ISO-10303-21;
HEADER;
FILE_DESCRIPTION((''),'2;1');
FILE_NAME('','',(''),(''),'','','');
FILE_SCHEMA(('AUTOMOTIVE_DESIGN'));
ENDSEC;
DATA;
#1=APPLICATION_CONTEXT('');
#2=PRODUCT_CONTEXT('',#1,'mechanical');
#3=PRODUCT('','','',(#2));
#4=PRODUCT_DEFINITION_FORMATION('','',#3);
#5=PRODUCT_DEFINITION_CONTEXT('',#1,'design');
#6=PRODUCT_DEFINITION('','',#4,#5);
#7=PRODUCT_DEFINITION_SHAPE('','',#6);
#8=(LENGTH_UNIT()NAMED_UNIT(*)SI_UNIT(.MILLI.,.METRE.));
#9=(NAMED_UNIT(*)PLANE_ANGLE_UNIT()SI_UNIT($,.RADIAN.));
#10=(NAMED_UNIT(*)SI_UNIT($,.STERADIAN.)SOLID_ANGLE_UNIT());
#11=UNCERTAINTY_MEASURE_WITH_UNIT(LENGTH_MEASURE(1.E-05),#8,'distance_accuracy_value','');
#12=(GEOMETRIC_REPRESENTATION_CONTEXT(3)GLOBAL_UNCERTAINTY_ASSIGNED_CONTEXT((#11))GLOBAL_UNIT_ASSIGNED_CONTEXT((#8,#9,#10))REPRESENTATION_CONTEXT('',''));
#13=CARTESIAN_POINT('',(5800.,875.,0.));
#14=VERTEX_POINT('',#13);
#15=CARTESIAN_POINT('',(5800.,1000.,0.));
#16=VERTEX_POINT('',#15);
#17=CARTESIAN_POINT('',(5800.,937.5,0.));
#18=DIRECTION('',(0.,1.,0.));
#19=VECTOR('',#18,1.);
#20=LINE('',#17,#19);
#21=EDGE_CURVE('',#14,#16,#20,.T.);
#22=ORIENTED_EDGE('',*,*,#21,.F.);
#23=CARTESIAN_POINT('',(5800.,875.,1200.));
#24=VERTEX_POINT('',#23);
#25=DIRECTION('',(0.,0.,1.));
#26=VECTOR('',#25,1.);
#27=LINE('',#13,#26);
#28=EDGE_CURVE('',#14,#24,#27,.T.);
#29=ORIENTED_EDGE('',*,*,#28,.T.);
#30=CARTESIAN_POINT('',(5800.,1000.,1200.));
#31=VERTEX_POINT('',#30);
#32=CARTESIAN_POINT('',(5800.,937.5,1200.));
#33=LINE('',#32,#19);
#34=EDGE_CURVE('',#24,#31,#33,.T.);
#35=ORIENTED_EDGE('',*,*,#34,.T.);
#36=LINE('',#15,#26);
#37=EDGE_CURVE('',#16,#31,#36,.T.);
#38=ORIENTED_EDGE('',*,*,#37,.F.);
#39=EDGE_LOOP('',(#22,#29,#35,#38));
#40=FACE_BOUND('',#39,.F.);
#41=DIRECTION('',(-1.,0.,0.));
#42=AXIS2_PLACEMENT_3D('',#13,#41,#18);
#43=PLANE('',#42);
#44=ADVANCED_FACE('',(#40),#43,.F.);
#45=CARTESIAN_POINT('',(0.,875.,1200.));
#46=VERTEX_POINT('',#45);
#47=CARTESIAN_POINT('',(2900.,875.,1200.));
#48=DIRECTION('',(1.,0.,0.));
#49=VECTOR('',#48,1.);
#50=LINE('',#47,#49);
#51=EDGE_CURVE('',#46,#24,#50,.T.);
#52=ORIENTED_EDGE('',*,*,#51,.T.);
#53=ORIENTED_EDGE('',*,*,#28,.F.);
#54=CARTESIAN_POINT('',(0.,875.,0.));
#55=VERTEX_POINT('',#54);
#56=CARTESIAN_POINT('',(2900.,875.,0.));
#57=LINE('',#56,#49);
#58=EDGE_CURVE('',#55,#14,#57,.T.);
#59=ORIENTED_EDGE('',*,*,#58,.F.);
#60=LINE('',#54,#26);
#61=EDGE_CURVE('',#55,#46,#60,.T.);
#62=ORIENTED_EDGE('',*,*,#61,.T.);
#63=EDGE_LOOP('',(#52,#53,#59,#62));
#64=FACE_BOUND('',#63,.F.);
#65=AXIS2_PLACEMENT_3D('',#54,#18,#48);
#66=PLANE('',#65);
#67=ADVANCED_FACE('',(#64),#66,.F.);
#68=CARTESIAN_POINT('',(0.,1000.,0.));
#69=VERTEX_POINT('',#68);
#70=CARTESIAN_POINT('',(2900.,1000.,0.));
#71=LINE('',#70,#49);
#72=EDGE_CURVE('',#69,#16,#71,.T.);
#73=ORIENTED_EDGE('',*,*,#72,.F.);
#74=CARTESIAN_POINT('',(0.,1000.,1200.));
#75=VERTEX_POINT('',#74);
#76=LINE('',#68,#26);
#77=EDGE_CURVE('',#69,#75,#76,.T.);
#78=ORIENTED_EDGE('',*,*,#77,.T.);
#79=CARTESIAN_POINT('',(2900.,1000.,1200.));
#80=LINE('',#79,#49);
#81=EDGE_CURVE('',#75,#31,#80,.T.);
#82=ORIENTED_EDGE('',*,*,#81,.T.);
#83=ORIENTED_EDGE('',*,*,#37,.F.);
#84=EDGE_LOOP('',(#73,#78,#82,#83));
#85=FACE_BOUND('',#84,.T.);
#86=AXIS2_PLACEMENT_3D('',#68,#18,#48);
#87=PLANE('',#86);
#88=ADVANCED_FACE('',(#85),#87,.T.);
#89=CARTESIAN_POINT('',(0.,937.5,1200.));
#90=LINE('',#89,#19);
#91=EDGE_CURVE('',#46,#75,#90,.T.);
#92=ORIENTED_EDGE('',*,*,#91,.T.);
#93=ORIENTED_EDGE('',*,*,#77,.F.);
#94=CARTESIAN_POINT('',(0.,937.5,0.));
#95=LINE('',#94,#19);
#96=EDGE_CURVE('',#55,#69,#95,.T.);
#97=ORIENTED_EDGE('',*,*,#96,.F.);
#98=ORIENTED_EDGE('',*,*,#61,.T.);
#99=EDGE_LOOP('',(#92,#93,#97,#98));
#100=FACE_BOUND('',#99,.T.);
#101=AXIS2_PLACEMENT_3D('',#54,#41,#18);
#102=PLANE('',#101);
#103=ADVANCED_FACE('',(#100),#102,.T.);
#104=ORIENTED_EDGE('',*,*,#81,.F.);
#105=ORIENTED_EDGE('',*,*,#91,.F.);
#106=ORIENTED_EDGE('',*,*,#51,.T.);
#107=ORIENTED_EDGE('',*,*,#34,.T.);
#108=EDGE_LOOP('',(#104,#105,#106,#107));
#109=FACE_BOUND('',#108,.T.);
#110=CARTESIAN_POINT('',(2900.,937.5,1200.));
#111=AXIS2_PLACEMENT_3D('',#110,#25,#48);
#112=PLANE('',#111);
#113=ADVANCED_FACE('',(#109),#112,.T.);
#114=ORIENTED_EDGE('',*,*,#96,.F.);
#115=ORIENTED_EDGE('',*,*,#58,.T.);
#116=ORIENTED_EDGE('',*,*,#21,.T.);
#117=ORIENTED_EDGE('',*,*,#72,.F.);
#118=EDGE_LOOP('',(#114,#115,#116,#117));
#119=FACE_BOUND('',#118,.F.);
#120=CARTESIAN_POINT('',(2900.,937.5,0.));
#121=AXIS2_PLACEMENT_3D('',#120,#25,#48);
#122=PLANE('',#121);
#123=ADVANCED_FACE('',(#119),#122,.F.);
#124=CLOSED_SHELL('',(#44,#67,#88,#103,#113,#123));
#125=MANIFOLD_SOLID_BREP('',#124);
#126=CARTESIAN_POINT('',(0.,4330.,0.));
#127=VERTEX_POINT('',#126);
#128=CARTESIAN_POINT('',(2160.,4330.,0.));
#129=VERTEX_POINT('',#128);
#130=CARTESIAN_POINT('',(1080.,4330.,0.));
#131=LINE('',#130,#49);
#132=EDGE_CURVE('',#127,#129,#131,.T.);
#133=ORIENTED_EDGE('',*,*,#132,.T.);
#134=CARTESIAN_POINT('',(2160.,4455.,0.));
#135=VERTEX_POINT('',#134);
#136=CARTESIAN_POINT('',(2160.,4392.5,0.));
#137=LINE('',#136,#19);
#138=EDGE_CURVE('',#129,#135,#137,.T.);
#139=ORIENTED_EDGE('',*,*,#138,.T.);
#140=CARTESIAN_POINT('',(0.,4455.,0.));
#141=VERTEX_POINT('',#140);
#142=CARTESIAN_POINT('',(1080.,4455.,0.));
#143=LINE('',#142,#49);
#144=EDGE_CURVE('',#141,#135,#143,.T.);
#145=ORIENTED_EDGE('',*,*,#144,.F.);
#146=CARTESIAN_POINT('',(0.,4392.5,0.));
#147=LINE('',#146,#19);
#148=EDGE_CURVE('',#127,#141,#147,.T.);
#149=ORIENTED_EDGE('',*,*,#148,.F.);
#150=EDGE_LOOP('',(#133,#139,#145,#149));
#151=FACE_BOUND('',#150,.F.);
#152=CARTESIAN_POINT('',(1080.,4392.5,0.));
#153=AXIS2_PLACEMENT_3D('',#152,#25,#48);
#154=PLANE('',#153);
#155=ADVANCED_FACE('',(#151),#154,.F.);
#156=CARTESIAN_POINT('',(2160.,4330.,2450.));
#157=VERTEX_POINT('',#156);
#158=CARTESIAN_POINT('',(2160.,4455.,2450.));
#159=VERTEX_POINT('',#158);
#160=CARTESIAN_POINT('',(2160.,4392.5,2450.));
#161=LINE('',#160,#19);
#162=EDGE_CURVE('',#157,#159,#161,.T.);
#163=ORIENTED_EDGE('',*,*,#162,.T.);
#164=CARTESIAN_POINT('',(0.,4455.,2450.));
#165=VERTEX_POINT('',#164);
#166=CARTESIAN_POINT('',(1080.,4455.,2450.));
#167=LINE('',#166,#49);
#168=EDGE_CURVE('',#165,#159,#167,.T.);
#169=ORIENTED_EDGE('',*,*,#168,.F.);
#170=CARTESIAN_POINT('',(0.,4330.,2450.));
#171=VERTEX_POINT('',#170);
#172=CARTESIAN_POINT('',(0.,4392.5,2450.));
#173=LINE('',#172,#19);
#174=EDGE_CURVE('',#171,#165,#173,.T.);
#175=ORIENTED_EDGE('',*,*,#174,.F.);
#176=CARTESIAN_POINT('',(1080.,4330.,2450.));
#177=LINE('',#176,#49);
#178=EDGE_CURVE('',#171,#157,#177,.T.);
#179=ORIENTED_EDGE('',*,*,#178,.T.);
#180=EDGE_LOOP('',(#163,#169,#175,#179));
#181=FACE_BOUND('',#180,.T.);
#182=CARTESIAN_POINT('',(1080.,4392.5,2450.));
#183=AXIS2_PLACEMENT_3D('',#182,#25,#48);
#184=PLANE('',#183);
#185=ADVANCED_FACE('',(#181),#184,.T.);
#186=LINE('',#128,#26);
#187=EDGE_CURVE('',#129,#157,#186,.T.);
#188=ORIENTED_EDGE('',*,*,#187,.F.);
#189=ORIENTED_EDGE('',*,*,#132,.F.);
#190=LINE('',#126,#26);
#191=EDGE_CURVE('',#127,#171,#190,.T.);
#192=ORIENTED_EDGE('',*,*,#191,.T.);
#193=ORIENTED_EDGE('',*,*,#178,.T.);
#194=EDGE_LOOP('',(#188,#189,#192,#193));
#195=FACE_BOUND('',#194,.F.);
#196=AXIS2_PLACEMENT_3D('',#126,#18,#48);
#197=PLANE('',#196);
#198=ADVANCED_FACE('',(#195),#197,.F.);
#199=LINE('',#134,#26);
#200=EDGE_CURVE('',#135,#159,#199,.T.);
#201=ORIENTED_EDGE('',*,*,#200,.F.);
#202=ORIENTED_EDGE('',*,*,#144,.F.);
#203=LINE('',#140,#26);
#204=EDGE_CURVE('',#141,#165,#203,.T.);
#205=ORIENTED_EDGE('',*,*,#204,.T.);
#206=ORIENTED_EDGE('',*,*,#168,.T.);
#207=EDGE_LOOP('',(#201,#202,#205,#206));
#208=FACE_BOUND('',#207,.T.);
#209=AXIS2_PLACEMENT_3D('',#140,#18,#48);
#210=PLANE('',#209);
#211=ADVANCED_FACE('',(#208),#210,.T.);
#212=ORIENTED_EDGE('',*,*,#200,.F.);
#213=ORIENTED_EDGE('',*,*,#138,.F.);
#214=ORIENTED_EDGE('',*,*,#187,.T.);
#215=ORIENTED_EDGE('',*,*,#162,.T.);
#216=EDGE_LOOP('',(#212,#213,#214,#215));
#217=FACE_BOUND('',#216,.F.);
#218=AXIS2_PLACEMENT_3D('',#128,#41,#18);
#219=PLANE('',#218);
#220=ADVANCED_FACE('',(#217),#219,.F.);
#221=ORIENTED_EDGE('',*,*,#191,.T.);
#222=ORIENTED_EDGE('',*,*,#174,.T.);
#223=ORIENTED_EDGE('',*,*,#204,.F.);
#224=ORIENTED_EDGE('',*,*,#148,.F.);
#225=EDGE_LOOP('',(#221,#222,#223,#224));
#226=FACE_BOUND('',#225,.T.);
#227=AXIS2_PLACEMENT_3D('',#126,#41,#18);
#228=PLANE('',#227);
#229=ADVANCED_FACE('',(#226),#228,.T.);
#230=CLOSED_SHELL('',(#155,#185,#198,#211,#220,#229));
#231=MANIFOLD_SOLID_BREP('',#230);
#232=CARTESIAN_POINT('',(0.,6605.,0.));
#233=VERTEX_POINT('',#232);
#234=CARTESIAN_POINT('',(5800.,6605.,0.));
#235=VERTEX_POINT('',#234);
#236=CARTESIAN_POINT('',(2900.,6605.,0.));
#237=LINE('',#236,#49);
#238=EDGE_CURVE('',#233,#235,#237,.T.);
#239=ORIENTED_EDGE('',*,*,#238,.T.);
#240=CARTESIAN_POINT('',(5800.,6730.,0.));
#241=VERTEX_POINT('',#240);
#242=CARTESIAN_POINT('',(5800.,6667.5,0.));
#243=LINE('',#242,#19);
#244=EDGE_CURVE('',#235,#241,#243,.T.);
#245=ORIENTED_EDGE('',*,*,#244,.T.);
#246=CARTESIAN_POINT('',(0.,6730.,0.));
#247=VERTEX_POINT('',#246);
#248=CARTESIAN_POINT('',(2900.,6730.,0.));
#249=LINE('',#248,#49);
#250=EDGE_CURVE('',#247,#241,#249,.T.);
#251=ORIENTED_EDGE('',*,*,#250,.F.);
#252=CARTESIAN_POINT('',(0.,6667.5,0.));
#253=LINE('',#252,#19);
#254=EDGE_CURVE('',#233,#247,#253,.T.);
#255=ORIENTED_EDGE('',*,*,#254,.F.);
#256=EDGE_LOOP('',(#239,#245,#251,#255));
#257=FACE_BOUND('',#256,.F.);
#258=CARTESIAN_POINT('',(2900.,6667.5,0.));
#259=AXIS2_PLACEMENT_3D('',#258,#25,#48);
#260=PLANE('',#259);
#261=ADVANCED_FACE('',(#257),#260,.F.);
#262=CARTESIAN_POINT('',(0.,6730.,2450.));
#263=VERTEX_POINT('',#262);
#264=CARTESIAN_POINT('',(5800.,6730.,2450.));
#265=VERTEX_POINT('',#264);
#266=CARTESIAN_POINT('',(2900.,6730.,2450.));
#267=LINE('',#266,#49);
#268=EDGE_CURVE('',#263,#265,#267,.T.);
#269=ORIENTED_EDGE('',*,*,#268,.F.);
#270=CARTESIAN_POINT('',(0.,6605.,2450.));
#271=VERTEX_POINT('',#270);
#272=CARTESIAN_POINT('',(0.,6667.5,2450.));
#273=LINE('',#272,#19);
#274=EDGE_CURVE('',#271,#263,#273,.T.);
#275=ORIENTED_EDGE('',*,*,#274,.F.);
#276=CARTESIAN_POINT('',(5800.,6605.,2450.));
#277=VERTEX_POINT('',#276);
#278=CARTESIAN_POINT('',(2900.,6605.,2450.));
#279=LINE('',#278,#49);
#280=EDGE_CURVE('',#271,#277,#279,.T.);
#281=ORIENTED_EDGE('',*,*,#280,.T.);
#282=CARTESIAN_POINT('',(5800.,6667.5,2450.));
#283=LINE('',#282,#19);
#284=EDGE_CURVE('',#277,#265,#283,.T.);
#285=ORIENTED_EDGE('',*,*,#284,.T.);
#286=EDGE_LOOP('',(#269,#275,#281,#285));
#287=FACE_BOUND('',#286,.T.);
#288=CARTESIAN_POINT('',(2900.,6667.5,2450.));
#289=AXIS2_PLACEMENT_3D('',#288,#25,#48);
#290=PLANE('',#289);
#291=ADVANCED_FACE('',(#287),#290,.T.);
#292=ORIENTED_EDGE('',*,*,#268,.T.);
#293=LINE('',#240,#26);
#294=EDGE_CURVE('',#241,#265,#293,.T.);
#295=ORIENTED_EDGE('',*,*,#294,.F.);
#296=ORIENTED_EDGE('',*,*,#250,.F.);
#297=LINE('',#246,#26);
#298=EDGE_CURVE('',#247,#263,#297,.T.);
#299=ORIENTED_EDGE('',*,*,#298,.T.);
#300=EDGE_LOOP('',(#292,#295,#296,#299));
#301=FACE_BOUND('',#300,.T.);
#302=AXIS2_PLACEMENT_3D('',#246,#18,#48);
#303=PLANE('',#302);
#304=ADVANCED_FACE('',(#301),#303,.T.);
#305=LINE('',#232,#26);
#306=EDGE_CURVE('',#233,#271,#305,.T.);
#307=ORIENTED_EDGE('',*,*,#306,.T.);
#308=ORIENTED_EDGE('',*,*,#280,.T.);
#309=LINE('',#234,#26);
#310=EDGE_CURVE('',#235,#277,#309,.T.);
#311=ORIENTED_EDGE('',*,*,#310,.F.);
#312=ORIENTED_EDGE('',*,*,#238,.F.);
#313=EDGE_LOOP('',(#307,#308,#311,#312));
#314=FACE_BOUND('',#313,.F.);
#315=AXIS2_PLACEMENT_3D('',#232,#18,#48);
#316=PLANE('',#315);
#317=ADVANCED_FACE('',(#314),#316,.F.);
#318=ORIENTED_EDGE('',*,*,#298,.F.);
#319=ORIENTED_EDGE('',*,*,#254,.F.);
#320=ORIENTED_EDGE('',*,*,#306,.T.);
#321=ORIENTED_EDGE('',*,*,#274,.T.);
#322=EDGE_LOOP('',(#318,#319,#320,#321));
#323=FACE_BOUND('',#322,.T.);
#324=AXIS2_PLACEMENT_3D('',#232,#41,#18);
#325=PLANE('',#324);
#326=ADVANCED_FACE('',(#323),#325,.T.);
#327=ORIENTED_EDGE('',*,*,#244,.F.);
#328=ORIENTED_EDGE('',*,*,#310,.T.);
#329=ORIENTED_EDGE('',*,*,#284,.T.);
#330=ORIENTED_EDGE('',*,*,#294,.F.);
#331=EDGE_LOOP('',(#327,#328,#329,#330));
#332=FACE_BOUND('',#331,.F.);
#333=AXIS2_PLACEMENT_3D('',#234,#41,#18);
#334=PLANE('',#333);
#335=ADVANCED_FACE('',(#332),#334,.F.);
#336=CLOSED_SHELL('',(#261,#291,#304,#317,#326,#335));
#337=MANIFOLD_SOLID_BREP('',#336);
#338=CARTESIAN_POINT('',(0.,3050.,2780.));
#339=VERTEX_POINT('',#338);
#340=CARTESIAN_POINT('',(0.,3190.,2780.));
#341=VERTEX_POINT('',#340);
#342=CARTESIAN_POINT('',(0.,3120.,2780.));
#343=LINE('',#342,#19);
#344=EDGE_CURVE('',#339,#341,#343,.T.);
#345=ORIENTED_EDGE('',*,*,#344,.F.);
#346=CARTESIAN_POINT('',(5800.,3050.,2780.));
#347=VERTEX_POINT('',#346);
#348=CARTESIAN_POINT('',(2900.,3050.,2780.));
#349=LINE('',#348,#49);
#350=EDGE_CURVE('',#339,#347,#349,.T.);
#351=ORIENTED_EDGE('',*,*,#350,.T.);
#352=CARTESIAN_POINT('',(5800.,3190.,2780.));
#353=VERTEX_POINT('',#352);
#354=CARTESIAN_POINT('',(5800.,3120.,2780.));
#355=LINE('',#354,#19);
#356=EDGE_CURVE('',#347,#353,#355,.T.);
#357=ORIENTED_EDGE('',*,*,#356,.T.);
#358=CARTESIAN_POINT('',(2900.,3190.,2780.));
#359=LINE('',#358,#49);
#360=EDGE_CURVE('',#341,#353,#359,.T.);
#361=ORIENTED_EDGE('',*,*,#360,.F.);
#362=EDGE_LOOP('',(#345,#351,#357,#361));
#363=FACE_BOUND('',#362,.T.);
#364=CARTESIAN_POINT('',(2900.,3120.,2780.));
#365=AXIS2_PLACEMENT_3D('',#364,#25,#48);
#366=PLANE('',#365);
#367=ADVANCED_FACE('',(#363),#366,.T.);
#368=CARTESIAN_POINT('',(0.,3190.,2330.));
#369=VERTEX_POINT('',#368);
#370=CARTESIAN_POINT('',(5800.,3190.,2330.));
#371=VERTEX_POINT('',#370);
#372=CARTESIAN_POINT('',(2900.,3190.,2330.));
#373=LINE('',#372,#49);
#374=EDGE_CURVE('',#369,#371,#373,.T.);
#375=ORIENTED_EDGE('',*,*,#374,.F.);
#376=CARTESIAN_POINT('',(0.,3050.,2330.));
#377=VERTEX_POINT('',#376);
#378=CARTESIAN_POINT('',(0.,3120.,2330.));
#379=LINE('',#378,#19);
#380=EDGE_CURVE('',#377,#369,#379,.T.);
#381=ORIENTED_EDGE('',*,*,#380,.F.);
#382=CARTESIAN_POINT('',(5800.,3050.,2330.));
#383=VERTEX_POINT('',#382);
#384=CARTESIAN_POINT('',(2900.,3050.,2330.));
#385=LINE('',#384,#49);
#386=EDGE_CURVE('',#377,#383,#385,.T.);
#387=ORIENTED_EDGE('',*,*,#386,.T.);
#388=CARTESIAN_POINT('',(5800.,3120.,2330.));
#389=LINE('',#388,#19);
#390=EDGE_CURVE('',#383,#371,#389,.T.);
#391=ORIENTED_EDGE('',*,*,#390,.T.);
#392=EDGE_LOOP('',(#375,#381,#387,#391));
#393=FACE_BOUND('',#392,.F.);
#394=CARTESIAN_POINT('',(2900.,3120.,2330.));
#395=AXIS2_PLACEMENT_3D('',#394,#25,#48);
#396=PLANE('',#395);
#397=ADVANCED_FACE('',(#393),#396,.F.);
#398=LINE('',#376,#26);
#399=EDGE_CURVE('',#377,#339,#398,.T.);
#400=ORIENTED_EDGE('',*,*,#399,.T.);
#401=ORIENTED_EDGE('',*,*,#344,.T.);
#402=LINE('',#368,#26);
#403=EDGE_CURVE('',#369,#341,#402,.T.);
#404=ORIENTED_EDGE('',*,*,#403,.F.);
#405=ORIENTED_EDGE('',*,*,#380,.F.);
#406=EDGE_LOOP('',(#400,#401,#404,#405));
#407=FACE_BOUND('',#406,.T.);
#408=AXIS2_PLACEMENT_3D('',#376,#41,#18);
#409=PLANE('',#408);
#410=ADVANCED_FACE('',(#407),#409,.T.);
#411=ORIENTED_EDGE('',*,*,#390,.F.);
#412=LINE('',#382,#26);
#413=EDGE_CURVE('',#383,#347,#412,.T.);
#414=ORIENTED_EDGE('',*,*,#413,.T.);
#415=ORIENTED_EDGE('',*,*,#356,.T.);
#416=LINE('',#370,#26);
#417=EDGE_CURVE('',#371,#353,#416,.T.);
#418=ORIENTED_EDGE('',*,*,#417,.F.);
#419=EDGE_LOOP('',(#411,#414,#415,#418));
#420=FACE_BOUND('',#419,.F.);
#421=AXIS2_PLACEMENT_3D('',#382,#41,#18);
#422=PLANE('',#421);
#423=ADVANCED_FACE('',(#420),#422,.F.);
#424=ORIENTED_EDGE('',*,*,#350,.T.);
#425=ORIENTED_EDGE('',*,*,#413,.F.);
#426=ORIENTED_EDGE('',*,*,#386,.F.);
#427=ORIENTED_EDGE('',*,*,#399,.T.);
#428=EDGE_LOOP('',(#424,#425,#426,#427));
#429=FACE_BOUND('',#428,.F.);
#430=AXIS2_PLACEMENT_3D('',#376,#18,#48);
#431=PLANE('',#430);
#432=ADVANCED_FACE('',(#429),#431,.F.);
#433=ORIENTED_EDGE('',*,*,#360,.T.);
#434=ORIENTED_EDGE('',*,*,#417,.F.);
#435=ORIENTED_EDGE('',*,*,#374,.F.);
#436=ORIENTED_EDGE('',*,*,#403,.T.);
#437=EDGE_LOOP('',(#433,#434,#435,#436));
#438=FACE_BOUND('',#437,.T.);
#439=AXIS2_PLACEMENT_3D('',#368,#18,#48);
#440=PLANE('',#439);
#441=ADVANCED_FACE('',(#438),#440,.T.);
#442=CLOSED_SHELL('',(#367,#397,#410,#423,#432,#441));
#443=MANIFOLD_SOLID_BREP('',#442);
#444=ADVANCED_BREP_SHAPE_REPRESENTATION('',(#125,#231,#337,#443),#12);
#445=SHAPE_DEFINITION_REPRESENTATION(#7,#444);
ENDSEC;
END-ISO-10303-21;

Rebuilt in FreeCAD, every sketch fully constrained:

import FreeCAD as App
import Part
import Sketcher
from FreeCAD import Vector
Q = App.Units.Quantity

doc = App.newDocument("Part")
params = doc.addObject("Spreadsheet::Sheet", "Params")
for row, (alias, value) in enumerate([
    ("sketch1_width", "5800 mm"),
    ("sketch1_height", "125 mm"),
    ("pad1_length", "1200 mm"),
    ("sketch2_width", "2160 mm"),
    ("sketch2_height", "125 mm"),
    ("pad2_length", "2450 mm"),
    ("sketch3_width", "5800 mm"),
    ("sketch3_height", "140 mm"),
    ("pad3_length", "450 mm"),
    ("sketch4_width", "5800 mm"),
    ("sketch4_height", "125 mm"),
    ("pad4_length", "2450 mm"),
], start=1):
    params.set(f"A{row}", alias)
    params.set(f"B{row}", "=" + value)
    params.setAlias(f"B{row}", alias)

body = doc.addObject("PartDesign::Body", "Body")

sketch1 = body.newObject("Sketcher::SketchObject", "Sketch")
sketch1.AttachmentSupport = (doc.getObject("XY_Plane"), [""])
sketch1.MapMode = "FlatFace"
sketch1.addGeometry([
    Part.LineSegment(Vector(0, 1000, 0), Vector(0, 875, 0)),
    Part.LineSegment(Vector(0, 875, 0), Vector(5800, 875, 0)),
    Part.LineSegment(Vector(5800, 875, 0), Vector(5800, 1000, 0)),
    Part.LineSegment(Vector(5800, 1000, 0), Vector(0, 1000, 0)),
], False)
sketch1.addConstraint([
    Sketcher.Constraint("Coincident", 0, 2, 1, 1),
    Sketcher.Constraint("Coincident", 1, 2, 2, 1),
    Sketcher.Constraint("Coincident", 2, 2, 3, 1),
    Sketcher.Constraint("Coincident", 3, 2, 0, 1),
    Sketcher.Constraint("Vertical", 0),
    Sketcher.Constraint("Horizontal", 1),
    Sketcher.Constraint("Vertical", 2),
    Sketcher.Constraint("Horizontal", 3),
    Sketcher.Constraint("PointOnObject", 0, 2, -2),
    Sketcher.Constraint("DistanceX", 1, 1, 1, 2, Q("5800 mm")),
    Sketcher.Constraint("DistanceY", 0, 2, 0, 1, Q("125 mm")),
    Sketcher.Constraint("DistanceY", -1, 1, 0, 2, Q("875 mm")),
])
sketch1.setExpression("Constraints[9]", "Params.sketch1_width")
sketch1.setExpression("Constraints[10]", "Params.sketch1_height")
pad1 = body.newObject("PartDesign::Pad", "Pad")
pad1.Profile = sketch1
pad1.setExpression("Length", "Params.pad1_length")
body2 = doc.addObject("PartDesign::Body", "Body001")

sketch2 = body2.newObject("Sketcher::SketchObject", "Sketch001")
sketch2.AttachmentSupport = (doc.getObject("XY_Plane001"), [""])
sketch2.MapMode = "FlatFace"
sketch2.addGeometry([
    Part.LineSegment(Vector(0, 4455, 0), Vector(0, 4330, 0)),
    Part.LineSegment(Vector(0, 4330, 0), Vector(2160, 4330, 0)),
    Part.LineSegment(Vector(2160, 4330, 0), Vector(2160, 4455, 0)),
    Part.LineSegment(Vector(2160, 4455, 0), Vector(0, 4455, 0)),
], False)
sketch2.addConstraint([
    Sketcher.Constraint("Coincident", 0, 2, 1, 1),
    Sketcher.Constraint("Coincident", 1, 2, 2, 1),
    Sketcher.Constraint("Coincident", 2, 2, 3, 1),
    Sketcher.Constraint("Coincident", 3, 2, 0, 1),
    Sketcher.Constraint("Vertical", 0),
    Sketcher.Constraint("Horizontal", 1),
    Sketcher.Constraint("Vertical", 2),
    Sketcher.Constraint("Horizontal", 3),
    Sketcher.Constraint("PointOnObject", 0, 2, -2),
    Sketcher.Constraint("DistanceX", 1, 1, 1, 2, Q("2160 mm")),
    Sketcher.Constraint("DistanceY", 0, 2, 0, 1, Q("125 mm")),
    Sketcher.Constraint("DistanceY", -1, 1, 0, 2, Q("4330 mm")),
])
sketch2.setExpression("Constraints[9]", "Params.sketch2_width")
sketch2.setExpression("Constraints[10]", "Params.sketch2_height")
pad2 = body2.newObject("PartDesign::Pad", "Pad001")
pad2.Profile = sketch2
pad2.setExpression("Length", "Params.pad2_length")
body3 = doc.addObject("PartDesign::Body", "Body002")

sketch3 = body3.newObject("Sketcher::SketchObject", "Sketch002")
sketch3.AttachmentSupport = (doc.getObject("XY_Plane002"), [""])
sketch3.MapMode = "FlatFace"
sketch3.AttachmentOffset = App.Placement(Vector(0, 0, 2330), App.Rotation())
sketch3.addGeometry([
    Part.LineSegment(Vector(0, 3190, 0), Vector(0, 3050, 0)),
    Part.LineSegment(Vector(0, 3050, 0), Vector(5800, 3050, 0)),
    Part.LineSegment(Vector(5800, 3050, 0), Vector(5800, 3190, 0)),
    Part.LineSegment(Vector(5800, 3190, 0), Vector(0, 3190, 0)),
], False)
sketch3.addConstraint([
    Sketcher.Constraint("Coincident", 0, 2, 1, 1),
    Sketcher.Constraint("Coincident", 1, 2, 2, 1),
    Sketcher.Constraint("Coincident", 2, 2, 3, 1),
    Sketcher.Constraint("Coincident", 3, 2, 0, 1),
    Sketcher.Constraint("Vertical", 0),
    Sketcher.Constraint("Horizontal", 1),
    Sketcher.Constraint("Vertical", 2),
    Sketcher.Constraint("Horizontal", 3),
    Sketcher.Constraint("PointOnObject", 0, 2, -2),
    Sketcher.Constraint("DistanceX", 1, 1, 1, 2, Q("5800 mm")),
    Sketcher.Constraint("DistanceY", 0, 2, 0, 1, Q("140 mm")),
    Sketcher.Constraint("DistanceY", -1, 1, 0, 2, Q("3050 mm")),
])
sketch3.setExpression("Constraints[9]", "Params.sketch3_width")
sketch3.setExpression("Constraints[10]", "Params.sketch3_height")
pad3 = body3.newObject("PartDesign::Pad", "Pad002")
pad3.Profile = sketch3
pad3.setExpression("Length", "Params.pad3_length")
body4 = doc.addObject("PartDesign::Body", "Body003")

sketch4 = body4.newObject("Sketcher::SketchObject", "Sketch003")
sketch4.AttachmentSupport = (doc.getObject("XY_Plane003"), [""])
sketch4.MapMode = "FlatFace"
sketch4.addGeometry([
    Part.LineSegment(Vector(0, 6730, 0), Vector(0, 6605, 0)),
    Part.LineSegment(Vector(0, 6605, 0), Vector(5800, 6605, 0)),
    Part.LineSegment(Vector(5800, 6605, 0), Vector(5800, 6730, 0)),
    Part.LineSegment(Vector(5800, 6730, 0), Vector(0, 6730, 0)),
], False)
sketch4.addConstraint([
    Sketcher.Constraint("Coincident", 0, 2, 1, 1),
    Sketcher.Constraint("Coincident", 1, 2, 2, 1),
    Sketcher.Constraint("Coincident", 2, 2, 3, 1),
    Sketcher.Constraint("Coincident", 3, 2, 0, 1),
    Sketcher.Constraint("Vertical", 0),
    Sketcher.Constraint("Horizontal", 1),
    Sketcher.Constraint("Vertical", 2),
    Sketcher.Constraint("Horizontal", 3),
    Sketcher.Constraint("PointOnObject", 0, 2, -2),
    Sketcher.Constraint("DistanceX", 1, 1, 1, 2, Q("5800 mm")),
    Sketcher.Constraint("DistanceY", 0, 2, 0, 1, Q("125 mm")),
    Sketcher.Constraint("DistanceY", -1, 1, 0, 2, Q("6605 mm")),
])
sketch4.setExpression("Constraints[9]", "Params.sketch4_width")
sketch4.setExpression("Constraints[10]", "Params.sketch4_height")
pad4 = body4.newObject("PartDesign::Pad", "Pad003")
pad4.Profile = sketch4
pad4.setExpression("Length", "Params.pad4_length")

doc.recompute()
